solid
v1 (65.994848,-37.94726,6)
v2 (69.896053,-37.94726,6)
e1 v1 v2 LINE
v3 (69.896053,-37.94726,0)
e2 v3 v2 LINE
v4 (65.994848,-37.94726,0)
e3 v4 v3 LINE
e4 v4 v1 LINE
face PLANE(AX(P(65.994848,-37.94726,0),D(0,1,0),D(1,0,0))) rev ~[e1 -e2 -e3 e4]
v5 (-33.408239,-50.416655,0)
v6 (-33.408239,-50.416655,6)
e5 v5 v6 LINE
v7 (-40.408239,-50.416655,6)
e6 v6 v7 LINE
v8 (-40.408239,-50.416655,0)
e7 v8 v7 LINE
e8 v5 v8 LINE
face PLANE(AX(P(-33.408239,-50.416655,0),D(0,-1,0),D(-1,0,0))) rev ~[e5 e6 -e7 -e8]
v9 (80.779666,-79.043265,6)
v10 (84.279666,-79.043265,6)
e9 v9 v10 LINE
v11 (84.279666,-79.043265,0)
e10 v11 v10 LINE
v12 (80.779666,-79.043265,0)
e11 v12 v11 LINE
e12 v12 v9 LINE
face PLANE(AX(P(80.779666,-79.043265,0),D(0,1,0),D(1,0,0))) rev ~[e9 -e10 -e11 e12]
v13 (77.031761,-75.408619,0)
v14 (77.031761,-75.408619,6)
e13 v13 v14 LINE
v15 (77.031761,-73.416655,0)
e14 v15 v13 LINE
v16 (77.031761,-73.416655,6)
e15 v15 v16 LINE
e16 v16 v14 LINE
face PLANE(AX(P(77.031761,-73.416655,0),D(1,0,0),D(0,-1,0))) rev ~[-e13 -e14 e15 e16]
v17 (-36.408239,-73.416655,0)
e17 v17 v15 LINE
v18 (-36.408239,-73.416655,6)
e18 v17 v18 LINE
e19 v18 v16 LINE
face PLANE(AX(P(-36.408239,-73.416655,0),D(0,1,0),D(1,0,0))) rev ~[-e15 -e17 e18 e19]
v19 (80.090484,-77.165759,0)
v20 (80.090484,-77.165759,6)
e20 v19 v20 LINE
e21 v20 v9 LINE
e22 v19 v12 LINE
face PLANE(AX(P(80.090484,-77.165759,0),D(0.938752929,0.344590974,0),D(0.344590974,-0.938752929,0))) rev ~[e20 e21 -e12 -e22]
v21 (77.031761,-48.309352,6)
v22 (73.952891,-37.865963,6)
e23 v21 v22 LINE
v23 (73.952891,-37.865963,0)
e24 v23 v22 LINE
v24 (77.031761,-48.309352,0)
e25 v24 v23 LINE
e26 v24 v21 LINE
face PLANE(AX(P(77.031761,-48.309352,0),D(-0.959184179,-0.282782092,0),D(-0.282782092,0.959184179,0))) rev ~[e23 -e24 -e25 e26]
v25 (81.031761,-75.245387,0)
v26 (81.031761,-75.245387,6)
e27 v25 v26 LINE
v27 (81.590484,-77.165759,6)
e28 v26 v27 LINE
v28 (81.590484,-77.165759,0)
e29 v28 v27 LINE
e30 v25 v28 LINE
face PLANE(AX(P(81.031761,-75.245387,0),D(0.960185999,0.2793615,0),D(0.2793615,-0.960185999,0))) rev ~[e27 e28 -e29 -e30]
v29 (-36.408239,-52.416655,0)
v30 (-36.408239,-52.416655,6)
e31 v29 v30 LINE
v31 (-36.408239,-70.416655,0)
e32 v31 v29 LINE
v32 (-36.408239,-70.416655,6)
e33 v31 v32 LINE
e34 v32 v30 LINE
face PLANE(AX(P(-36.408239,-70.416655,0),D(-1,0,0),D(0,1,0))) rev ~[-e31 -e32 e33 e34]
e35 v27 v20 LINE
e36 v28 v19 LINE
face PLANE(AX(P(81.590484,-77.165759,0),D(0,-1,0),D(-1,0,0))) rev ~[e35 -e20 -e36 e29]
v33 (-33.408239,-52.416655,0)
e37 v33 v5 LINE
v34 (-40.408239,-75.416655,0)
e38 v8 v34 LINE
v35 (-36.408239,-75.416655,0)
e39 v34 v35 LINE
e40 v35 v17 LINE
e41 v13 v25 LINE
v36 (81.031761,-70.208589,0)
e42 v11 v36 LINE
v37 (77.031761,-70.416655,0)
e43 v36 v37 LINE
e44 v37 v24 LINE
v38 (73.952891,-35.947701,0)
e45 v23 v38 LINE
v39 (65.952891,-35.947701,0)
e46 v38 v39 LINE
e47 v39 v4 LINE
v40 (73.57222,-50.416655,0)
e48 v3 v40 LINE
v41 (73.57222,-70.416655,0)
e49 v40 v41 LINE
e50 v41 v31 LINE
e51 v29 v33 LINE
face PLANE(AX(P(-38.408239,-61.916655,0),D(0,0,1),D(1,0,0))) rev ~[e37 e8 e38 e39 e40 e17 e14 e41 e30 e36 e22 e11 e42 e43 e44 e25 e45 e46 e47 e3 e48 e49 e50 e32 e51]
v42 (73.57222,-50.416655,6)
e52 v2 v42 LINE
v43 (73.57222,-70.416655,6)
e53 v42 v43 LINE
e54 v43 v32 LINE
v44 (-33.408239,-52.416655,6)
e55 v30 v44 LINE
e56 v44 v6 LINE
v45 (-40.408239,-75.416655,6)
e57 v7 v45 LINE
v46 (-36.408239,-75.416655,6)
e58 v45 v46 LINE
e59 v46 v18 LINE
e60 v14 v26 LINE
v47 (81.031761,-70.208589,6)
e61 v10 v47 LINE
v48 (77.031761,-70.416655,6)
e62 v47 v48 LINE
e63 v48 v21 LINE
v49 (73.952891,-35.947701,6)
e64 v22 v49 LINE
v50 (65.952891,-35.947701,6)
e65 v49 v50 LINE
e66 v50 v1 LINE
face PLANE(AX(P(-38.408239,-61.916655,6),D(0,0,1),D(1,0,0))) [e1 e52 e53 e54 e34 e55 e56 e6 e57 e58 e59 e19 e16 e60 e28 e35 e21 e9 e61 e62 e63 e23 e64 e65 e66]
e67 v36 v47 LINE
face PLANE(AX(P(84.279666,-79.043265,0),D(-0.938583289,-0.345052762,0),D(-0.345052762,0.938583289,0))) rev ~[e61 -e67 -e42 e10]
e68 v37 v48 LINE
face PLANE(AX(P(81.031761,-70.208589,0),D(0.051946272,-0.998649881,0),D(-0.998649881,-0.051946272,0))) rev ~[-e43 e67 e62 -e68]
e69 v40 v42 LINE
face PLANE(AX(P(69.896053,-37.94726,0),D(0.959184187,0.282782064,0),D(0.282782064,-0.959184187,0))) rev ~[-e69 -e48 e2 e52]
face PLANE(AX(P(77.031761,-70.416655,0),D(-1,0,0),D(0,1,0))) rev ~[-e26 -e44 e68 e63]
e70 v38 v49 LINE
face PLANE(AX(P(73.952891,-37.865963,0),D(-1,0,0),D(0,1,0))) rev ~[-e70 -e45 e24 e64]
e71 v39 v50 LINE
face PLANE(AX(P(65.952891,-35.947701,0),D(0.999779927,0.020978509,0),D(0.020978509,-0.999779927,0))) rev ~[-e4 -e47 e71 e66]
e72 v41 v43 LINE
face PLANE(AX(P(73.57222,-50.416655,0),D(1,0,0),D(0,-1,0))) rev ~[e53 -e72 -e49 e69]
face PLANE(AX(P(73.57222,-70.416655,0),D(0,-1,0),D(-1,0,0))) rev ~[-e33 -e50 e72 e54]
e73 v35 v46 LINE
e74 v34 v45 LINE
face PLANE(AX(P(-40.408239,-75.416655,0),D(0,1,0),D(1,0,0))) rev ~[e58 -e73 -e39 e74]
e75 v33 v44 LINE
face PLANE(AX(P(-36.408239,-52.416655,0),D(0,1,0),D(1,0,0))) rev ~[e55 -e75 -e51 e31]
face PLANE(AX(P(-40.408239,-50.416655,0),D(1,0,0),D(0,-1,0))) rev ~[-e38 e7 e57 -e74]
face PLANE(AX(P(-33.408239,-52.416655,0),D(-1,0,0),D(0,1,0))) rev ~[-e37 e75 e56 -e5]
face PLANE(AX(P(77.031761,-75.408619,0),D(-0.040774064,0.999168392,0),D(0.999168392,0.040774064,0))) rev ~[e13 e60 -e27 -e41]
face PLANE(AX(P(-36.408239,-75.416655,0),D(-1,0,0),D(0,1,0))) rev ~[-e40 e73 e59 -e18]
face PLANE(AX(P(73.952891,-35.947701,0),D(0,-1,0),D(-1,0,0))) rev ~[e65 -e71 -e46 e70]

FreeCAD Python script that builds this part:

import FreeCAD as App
import Part
import Sketcher
from FreeCAD import Vector

doc = App.newDocument("Part")
params = doc.addObject("Spreadsheet::Sheet", "Params")
for row, (alias, value) in enumerate([
    ("sketch1_width", "4 mm"),
    ("sketch1_width2", "8 mm"),
    ("sketch1_width3", "3 mm"),
    ("sketch1_height", "25 mm"),
    ("sketch1_height2", "2 mm"),
    ("pad1_length", "6 mm"),
], start=1):
    params.set(f"A{row}", alias)
    params.set(f"B{row}", "=" + value)
    params.setAlias(f"B{row}", alias)

body = doc.addObject("PartDesign::Body", "Body")

sketch1 = body.newObject("Sketcher::SketchObject", "Sketch")
sketch1.AttachmentSupport = (doc.getObject("XY_Plane"), [""])
sketch1.MapMode = "FlatFace"
sketch1.addGeometry([
    Part.LineSegment(Vector(-40.4, -50.4, 0), Vector(-40.4, -75.4, 0)),
    Part.LineSegment(Vector(-40.4, -75.4, 0), Vector(-36.4, -75.4, 0)),
    Part.LineSegment(Vector(-36.4, -75.4, 0), Vector(-36.4, -73.4, 0)),
    Part.LineSegment(Vector(-36.4, -73.4, 0), Vector(77, -73.4, 0)),
    Part.LineSegment(Vector(77, -73.4, 0), Vector(77, -75.4, 0)),
    Part.LineSegment(Vector(77, -75.4, 0), Vector(81, -75.2, 0)),
    Part.LineSegment(Vector(81, -75.2, 0), Vector(81.6, -77.2, 0)),
    Part.LineSegment(Vector(81.6, -77.2, 0), Vector(80.1, -77.2, 0)),
    Part.LineSegment(Vector(80.1, -77.2, 0), Vector(80.8, -79, 0)),
    Part.LineSegment(Vector(80.8, -79, 0), Vector(84.3, -79, 0)),
    Part.LineSegment(Vector(84.3, -79, 0), Vector(81, -70.2, 0)),
    Part.LineSegment(Vector(81, -70.2, 0), Vector(77, -70.4, 0)),
    Part.LineSegment(Vector(77, -70.4, 0), Vector(77, -48.3, 0)),
    Part.LineSegment(Vector(77, -48.3, 0), Vector(74, -37.9, 0)),
    Part.LineSegment(Vector(74, -37.9, 0), Vector(74, -35.9, 0)),
    Part.LineSegment(Vector(74, -35.9, 0), Vector(66, -35.9, 0)),
    Part.LineSegment(Vector(66, -35.9, 0), Vector(66, -37.9, 0)),
    Part.LineSegment(Vector(66, -37.9, 0), Vector(69.9, -37.9, 0)),
    Part.LineSegment(Vector(69.9, -37.9, 0), Vector(73.6, -50.4, 0)),
    Part.LineSegment(Vector(73.6, -50.4, 0), Vector(73.6, -70.4, 0)),
    Part.LineSegment(Vector(73.6, -70.4, 0), Vector(-36.4, -70.4, 0)),
    Part.LineSegment(Vector(-36.4, -70.4, 0), Vector(-36.4, -52.4, 0)),
    Part.LineSegment(Vector(-36.4, -52.4, 0), Vector(-33.4, -52.4, 0)),
    Part.LineSegment(Vector(-33.4, -52.4, 0), Vector(-33.4, -50.4, 0)),
    Part.LineSegment(Vector(-33.4, -50.4, 0), Vector(-40.4, -50.4, 0)),
], False)
sketch1.addConstraint([
    Sketcher.Constraint("Coincident", 0, 2, 1, 1),
    Sketcher.Constraint("Coincident", 1, 2, 2, 1),
    Sketcher.Constraint("Coincident", 2, 2, 3, 1),
    Sketcher.Constraint("Coincident", 3, 2, 4, 1),
    Sketcher.Constraint("Coincident", 4, 2, 5, 1),
    Sketcher.Constraint("Coincident", 5, 2, 6, 1),
    Sketcher.Constraint("Coincident", 6, 2, 7, 1),
    Sketcher.Constraint("Coincident", 7, 2, 8, 1),
    Sketcher.Constraint("Coincident", 8, 2, 9, 1),
    Sketcher.Constraint("Coincident", 9, 2, 10, 1),
    Sketcher.Constraint("Coincident", 10, 2, 11, 1),
    Sketcher.Constraint("Coincident", 11, 2, 12, 1),
    Sketcher.Constraint("Coincident", 12, 2, 13, 1),
    Sketcher.Constraint("Coincident", 13, 2, 14, 1),
    Sketcher.Constraint("Coincident", 14, 2, 15, 1),
    Sketcher.Constraint("Coincident", 15, 2, 16, 1),
    Sketcher.Constraint("Coincident", 16, 2, 17, 1),
    Sketcher.Constraint("Coincident", 17, 2, 18, 1),
    Sketcher.Constraint("Coincident", 18, 2, 19, 1),
    Sketcher.Constraint("Coincident", 19, 2, 20, 1),
    Sketcher.Constraint("Coincident", 20, 2, 21, 1),
    Sketcher.Constraint("Coincident", 21, 2, 22, 1),
    Sketcher.Constraint("Coincident", 22, 2, 23, 1),
    Sketcher.Constraint("Coincident", 23, 2, 24, 1),
    Sketcher.Constraint("Coincident", 24, 2, 0, 1),
    Sketcher.Constraint("Vertical", 0),
    Sketcher.Constraint("Horizontal", 1),
    Sketcher.Constraint("Vertical", 2),
    Sketcher.Constraint("Horizontal", 3),
    Sketcher.Constraint("Vertical", 4),
    Sketcher.Constraint("Horizontal", 7),
    Sketcher.Constraint("Horizontal", 9),
    Sketcher.Constraint("Vertical", 12),
    Sketcher.Constraint("Vertical", 14),
    Sketcher.Constraint("Horizontal", 15),
    Sketcher.Constraint("Horizontal", 17),
    Sketcher.Constraint("Vertical", 19),
    Sketcher.Constraint("Horizontal", 20),
    Sketcher.Constraint("Vertical", 21),
    Sketcher.Constraint("Horizontal", 22),
    Sketcher.Constraint("Vertical", 23),
    Sketcher.Constraint("Horizontal", 24),
    Sketcher.Constraint("Parallel", 13, 18),
    Sketcher.Constraint("Horizontal", 11, 2, 19, 2),
    Sketcher.Constraint("Horizontal", 18, 2, 23, 2),
    Sketcher.Constraint("Vertical", 5, 2, 10, 2),
    Sketcher.Constraint("Vertical", 4, 2, 11, 2),
    Sketcher.Constraint("Vertical", 2, 2, 20, 2),
    Sketcher.Constraint("Equal", 2, 23),
    Sketcher.Constraint("Equal", 6, 8),
    Sketcher.Constraint("Equal", 8, 16),
    Sketcher.Constraint("DistanceX", 1, 1, 1, 2, 4.0),
    Sketcher.Constraint("DistanceX", 15, 2, 15, 1, 8.0),
    Sketcher.Constraint("DistanceX", 22, 1, 22, 2, 3.0),
    Sketcher.Constraint("DistanceY", 0, 2, 0, 1, 25.0),
    Sketcher.Constraint("DistanceY", 2, 1, 2, 2, 2.0),
    Sketcher.Constraint("DistanceY", 19, 2, 19, 1, 20.0),
    Sketcher.Constraint("Distance", 6, 2.0),
    Sketcher.Constraint("Distance", 18, 13.000001),
    Sketcher.Constraint("DistanceX", 7, 2, 7, 1, 1.5),
    Sketcher.Constraint("DistanceX", 9, 1, 9, 2, 3.5),
    Sketcher.Constraint("DistanceX", 4, 2, 5, 2, 4.0),
    Sketcher.Constraint("DistanceX", 3, 1, 3, 2, 113.44),
    Sketcher.Constraint("DistanceX", 20, 2, 20, 1, 109.980459),
    Sketcher.Constraint("DistanceY", 14, 1, 14, 2, 1.918262),
    Sketcher.Constraint("DistanceY", 14, 2, -1, 1, 35.947701),
    Sketcher.Constraint("Distance", 5, 4.003329),
    Sketcher.Constraint("DistanceX", 17, 1, 17, 2, 3.901205),
    Sketcher.Constraint("DistanceY", 4, 2, 4, 1, 1.991964),
    Sketcher.Constraint("DistanceY", 12, 1, 12, 2, 22.107303),
    Sketcher.Constraint("DistanceX", 0, 2, -1, 1, 40.408239),
    Sketcher.Constraint("DistanceY", 4, 2, -1, 1, 75.408619),
    Sketcher.Constraint("DistanceY", 6, 2, -1, 1, 77.165759),
    Sketcher.Constraint("DistanceY", 10, 2, -1, 1, 70.208589),
    Sketcher.Constraint("DistanceY", 8, 2, 5, 2, 3.797878),
])
sketch1.setExpression("Constraints[51]", "Params.sketch1_width")
sketch1.setExpression("Constraints[52]", "Params.sketch1_width2")
sketch1.setExpression("Constraints[53]", "Params.sketch1_width3")
sketch1.setExpression("Constraints[54]", "Params.sketch1_height")
sketch1.setExpression("Constraints[55]", "Params.sketch1_height2")
pad1 = body.newObject("PartDesign::Pad", "Pad")
pad1.Profile = sketch1
pad1.setExpression("Length", "Params.pad1_length")

doc.recompute()
